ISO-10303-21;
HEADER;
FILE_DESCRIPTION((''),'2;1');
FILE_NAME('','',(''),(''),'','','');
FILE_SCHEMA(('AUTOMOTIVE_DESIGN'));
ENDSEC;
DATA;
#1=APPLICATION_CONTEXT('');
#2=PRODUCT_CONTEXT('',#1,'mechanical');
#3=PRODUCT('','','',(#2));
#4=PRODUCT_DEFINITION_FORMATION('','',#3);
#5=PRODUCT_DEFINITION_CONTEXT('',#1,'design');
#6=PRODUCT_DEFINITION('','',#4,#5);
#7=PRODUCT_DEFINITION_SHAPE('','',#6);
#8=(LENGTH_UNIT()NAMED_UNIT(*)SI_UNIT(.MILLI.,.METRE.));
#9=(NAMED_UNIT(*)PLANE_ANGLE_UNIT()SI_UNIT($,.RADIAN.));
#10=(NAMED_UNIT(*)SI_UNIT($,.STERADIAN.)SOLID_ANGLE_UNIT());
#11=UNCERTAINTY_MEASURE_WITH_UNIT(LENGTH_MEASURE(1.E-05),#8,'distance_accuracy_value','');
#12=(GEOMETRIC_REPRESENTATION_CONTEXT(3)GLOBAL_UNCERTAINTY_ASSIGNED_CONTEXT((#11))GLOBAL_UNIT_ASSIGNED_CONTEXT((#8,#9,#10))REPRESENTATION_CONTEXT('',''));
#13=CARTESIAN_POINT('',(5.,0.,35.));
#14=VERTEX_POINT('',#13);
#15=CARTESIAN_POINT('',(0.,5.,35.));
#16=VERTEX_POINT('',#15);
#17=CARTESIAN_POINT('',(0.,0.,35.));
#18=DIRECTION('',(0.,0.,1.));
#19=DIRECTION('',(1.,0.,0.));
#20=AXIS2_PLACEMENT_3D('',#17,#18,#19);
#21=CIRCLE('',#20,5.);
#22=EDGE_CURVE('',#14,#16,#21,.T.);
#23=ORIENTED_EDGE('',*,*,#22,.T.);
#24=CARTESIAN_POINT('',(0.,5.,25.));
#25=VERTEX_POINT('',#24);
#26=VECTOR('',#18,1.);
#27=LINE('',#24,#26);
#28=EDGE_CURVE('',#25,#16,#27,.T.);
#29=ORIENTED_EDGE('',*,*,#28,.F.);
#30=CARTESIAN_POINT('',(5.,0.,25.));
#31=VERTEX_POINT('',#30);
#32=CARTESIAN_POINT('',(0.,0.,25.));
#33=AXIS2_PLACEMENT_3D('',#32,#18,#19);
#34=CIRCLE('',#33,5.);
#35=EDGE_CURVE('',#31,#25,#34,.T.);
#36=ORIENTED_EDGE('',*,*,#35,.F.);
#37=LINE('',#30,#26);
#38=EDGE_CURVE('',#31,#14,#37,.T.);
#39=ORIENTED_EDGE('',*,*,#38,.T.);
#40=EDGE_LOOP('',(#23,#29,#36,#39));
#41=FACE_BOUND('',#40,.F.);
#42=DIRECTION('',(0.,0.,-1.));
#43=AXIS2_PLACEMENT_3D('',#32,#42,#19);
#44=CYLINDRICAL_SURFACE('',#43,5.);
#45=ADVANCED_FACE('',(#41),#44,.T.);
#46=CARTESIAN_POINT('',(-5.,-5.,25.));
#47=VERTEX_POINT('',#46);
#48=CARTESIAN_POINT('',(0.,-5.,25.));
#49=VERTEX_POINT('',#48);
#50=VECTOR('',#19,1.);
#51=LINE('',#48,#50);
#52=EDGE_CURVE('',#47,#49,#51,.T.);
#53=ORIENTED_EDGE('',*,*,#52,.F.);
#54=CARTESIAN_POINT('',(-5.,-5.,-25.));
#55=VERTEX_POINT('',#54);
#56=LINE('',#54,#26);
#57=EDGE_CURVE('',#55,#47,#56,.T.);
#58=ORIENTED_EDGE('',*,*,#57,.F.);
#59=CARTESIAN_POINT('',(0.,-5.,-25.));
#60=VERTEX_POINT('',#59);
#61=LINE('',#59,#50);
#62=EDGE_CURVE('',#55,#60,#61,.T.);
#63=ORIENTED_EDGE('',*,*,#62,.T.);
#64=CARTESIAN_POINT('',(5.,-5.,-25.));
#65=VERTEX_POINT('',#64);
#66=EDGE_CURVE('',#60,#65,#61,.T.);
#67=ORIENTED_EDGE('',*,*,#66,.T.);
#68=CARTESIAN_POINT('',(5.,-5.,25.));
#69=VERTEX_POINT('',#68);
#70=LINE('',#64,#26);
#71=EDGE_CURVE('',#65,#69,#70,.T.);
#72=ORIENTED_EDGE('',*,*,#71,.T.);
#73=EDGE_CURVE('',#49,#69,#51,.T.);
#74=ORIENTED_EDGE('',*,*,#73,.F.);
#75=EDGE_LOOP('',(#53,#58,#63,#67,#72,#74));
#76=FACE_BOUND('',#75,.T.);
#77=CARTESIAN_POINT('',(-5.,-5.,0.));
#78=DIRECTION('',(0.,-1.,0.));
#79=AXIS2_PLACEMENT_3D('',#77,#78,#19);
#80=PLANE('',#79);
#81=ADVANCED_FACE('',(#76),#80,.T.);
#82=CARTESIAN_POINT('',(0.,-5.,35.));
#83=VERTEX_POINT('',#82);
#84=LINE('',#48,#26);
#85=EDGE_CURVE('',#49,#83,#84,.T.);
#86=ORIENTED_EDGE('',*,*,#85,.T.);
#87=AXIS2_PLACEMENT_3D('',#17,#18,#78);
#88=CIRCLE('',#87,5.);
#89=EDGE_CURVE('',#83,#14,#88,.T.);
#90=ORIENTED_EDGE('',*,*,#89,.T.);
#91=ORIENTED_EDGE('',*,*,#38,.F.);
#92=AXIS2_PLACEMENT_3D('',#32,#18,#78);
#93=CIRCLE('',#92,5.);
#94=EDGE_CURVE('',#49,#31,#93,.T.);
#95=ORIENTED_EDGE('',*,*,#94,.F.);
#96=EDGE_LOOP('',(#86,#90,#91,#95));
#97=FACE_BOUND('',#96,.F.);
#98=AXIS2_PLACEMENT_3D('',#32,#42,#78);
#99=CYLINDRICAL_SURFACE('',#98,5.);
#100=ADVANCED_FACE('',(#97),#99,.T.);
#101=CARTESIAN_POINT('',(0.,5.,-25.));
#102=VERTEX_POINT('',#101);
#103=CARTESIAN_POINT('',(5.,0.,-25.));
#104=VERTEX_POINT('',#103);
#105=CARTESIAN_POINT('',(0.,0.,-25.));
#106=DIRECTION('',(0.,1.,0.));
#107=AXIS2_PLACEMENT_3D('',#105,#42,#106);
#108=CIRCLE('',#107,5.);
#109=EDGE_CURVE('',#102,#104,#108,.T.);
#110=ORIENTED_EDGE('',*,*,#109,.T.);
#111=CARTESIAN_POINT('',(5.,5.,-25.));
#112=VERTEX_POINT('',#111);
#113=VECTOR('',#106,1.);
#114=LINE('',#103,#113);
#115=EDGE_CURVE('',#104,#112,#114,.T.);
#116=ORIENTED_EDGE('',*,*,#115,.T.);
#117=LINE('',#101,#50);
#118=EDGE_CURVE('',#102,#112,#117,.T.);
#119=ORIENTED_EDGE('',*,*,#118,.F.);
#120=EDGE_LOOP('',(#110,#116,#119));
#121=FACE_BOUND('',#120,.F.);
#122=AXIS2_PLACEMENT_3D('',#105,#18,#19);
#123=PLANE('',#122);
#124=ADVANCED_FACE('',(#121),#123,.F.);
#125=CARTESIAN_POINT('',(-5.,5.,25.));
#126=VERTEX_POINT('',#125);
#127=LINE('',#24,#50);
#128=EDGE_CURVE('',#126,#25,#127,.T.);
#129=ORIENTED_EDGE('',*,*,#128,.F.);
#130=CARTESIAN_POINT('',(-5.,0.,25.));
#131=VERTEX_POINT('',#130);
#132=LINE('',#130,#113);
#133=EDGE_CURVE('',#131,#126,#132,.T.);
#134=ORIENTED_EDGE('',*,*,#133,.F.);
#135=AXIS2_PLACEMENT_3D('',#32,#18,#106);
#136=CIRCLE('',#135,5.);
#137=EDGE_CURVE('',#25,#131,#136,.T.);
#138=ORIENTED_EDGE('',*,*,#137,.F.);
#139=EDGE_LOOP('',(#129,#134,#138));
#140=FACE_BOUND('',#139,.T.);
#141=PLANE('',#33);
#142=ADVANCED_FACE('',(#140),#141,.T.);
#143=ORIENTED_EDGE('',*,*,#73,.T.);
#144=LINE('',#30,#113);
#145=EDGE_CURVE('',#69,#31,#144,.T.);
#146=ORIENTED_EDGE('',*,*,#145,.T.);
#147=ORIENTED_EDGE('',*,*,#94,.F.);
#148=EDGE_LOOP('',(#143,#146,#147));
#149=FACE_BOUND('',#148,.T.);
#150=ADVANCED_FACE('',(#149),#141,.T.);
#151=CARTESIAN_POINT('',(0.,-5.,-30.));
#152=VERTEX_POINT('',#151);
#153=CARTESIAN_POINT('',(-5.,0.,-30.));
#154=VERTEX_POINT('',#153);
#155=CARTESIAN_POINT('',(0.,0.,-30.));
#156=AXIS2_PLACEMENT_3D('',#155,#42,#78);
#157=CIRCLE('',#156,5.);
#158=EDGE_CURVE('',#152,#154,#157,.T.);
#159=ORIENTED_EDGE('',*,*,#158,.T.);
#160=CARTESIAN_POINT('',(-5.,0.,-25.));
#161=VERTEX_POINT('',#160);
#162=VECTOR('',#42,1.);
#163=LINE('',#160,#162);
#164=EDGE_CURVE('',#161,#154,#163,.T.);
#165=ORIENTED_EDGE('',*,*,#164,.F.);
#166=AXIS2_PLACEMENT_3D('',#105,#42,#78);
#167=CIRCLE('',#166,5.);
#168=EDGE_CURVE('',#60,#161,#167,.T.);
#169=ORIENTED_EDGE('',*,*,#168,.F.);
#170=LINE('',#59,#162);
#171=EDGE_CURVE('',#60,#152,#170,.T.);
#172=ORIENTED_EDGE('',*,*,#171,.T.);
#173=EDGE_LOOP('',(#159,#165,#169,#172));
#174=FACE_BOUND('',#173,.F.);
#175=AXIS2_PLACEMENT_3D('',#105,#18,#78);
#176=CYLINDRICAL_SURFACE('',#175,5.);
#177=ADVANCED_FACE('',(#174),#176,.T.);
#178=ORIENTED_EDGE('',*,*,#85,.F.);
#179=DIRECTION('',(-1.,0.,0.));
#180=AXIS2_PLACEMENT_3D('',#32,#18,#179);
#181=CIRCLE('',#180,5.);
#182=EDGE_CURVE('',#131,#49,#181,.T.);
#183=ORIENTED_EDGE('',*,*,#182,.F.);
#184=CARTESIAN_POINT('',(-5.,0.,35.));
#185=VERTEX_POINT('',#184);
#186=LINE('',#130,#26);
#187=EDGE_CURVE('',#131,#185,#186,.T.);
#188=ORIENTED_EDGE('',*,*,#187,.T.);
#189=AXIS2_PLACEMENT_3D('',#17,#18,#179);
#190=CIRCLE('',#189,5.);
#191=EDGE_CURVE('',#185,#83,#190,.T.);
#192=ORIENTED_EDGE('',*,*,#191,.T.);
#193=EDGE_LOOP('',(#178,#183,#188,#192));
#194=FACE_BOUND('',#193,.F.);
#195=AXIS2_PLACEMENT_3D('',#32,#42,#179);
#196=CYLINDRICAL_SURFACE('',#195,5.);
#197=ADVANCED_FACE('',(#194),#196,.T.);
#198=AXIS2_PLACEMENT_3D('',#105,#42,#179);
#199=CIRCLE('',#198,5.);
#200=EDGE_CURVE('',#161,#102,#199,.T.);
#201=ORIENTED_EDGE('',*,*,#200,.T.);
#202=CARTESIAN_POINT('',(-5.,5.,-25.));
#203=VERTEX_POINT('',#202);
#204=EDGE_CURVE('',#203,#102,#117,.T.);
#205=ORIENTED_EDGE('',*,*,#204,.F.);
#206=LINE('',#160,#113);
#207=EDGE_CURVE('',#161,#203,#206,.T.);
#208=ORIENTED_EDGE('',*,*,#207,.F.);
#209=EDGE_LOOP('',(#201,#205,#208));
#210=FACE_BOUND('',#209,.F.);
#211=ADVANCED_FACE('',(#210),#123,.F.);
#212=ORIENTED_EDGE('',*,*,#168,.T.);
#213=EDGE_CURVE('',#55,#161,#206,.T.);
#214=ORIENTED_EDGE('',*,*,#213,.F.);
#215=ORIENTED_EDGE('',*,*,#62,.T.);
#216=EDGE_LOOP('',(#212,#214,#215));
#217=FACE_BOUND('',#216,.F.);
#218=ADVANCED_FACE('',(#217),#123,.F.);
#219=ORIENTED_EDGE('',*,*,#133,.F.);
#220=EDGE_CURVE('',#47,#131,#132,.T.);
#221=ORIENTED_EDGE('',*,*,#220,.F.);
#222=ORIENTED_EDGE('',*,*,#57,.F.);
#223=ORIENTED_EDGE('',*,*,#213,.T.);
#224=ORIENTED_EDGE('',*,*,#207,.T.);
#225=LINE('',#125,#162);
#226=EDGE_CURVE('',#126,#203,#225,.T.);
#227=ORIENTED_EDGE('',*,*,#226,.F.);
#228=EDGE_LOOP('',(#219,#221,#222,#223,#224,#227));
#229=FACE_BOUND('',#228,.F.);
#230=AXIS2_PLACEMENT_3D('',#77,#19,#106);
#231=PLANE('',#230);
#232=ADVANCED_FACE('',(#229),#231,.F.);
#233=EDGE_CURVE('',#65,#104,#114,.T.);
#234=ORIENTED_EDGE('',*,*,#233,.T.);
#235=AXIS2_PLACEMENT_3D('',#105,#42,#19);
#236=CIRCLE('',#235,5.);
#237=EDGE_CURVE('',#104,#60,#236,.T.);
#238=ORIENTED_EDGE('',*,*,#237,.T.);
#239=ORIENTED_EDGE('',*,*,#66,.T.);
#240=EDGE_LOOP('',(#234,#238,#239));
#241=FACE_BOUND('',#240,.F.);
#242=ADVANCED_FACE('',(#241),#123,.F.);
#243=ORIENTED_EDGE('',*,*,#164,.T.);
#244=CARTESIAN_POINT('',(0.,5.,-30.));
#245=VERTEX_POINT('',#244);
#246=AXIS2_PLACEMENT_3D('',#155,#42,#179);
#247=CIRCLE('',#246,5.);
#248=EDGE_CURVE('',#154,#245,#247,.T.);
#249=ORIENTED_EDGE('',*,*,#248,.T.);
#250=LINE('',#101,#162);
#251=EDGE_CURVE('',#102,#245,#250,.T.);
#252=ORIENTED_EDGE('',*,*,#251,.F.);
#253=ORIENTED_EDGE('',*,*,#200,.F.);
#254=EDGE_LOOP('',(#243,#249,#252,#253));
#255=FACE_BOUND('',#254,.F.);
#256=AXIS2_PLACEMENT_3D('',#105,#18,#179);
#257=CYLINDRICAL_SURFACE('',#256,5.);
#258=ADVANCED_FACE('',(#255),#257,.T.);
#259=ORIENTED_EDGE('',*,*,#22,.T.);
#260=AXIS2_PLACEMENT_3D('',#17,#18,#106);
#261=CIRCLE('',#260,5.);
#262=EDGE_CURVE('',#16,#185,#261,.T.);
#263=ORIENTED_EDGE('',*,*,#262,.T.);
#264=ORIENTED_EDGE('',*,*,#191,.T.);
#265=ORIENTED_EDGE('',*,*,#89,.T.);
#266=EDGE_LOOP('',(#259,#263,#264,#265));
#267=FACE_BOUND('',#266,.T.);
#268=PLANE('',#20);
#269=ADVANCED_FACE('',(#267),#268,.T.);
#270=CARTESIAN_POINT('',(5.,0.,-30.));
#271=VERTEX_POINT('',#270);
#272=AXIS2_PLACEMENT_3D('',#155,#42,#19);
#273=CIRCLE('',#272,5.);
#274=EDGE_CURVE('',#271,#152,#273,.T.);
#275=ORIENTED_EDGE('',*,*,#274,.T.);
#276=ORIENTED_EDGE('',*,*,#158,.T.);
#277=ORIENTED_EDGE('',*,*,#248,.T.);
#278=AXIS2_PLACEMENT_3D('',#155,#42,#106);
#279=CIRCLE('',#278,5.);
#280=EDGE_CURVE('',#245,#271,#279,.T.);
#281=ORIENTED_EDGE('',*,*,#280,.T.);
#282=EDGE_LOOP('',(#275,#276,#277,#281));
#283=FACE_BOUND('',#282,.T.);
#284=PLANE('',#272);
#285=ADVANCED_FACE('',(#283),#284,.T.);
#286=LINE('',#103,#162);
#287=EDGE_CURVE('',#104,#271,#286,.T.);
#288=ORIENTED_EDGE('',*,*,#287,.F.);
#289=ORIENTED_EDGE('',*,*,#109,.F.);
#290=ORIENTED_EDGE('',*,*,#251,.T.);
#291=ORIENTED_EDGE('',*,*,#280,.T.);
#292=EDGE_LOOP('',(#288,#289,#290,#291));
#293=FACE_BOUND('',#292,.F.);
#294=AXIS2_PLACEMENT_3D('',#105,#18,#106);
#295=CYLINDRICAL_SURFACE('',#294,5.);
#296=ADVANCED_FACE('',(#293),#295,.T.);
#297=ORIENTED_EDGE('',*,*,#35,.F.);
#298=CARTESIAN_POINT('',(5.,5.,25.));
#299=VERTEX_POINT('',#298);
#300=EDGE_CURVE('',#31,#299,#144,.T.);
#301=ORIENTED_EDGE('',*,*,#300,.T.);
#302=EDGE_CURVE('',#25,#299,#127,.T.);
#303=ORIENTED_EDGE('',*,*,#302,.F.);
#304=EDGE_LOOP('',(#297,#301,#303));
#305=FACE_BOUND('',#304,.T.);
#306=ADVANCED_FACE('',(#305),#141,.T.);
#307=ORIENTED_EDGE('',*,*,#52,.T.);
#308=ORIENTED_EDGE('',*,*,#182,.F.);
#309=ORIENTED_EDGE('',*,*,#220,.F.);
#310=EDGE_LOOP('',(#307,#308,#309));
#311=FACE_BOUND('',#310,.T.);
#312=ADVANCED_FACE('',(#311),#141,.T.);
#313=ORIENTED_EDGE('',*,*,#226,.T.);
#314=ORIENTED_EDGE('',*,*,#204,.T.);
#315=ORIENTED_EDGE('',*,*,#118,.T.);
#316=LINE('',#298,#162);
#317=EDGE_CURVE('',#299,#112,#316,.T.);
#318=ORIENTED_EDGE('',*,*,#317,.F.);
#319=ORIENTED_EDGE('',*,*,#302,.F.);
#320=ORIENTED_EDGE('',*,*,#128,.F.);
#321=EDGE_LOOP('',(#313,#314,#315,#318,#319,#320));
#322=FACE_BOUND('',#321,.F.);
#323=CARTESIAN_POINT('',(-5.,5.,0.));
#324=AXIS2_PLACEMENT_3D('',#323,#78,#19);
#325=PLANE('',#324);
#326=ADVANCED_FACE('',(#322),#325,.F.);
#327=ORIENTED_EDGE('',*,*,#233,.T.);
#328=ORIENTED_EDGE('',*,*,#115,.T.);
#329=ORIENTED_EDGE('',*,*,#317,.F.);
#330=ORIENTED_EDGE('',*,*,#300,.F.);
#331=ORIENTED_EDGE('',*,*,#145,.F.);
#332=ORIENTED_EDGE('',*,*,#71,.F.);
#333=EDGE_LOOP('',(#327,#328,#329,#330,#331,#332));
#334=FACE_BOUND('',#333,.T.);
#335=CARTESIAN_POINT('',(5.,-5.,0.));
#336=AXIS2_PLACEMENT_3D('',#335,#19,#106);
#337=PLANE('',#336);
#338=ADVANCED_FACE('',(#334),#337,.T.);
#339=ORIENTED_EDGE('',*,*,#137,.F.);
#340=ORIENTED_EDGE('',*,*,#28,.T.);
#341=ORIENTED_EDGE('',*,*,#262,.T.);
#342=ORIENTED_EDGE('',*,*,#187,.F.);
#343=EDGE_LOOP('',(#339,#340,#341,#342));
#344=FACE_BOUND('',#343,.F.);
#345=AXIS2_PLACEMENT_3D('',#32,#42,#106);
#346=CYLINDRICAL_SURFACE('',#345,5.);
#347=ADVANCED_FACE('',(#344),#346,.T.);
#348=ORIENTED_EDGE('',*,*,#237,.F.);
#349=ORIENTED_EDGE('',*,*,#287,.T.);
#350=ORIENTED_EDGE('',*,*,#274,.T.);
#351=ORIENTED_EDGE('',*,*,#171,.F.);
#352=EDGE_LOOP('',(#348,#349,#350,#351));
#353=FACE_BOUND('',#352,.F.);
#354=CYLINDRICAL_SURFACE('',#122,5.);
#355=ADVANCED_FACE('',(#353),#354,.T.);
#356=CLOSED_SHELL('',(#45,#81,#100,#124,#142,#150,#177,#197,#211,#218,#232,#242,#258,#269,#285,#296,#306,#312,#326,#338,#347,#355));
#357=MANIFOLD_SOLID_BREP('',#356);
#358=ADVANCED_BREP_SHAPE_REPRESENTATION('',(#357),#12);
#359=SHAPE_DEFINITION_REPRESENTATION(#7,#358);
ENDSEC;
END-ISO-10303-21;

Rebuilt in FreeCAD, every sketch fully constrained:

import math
import FreeCAD as App
import Part
import Sketcher

V = App.Vector
Q = App.Units.Quantity


def add_polygon(sketch, points):
    """Adds a closed chain of lines whose ends are joined by coincident constraints."""
    first, n = sketch.GeometryCount, len(points)
    for a, b in zip(points, points[1:] + points[:1]):
        sketch.addGeometry(Part.LineSegment(App.Vector(*a, 0), App.Vector(*b, 0)), False)
    for i in range(n):
        sketch.addConstraint(Sketcher.Constraint("Coincident", first + i, 2, first + (i + 1) % n, 1))

doc = App.newDocument("Part")
params = doc.addObject("Spreadsheet::Sheet", "Params")
for row, (alias, value) in enumerate([
    ("sketch1_width", "10 mm"),
    ("pad1_length", "50 mm"),
    ("sketch2_radius", "5 mm"),
    ("pad2_length", "5 mm"),
    ("sketch3_radius", "5 mm"),
    ("pad3_length", "10 mm"),
], start=1):
    params.set(f"A{row}", alias)
    params.set(f"B{row}", "=" + value)
    params.setAlias(f"B{row}", alias)

body = doc.addObject("PartDesign::Body", "Body")

# Sketch on XY plane
sketch1 = body.newObject("Sketcher::SketchObject", "Sketch")
sketch1.AttachmentSupport = (doc.getObject("XY_Plane"), [""])
sketch1.MapMode = "FlatFace"
add_polygon(sketch1, [(-5, 5), (-5, -5), (5, -5), (5, 5)])  # lines 0-3
sketch1.addConstraint([
    Sketcher.Constraint("Vertical", 0),
    Sketcher.Constraint("Horizontal", 1),
    Sketcher.Constraint("Vertical", 2),
    Sketcher.Constraint("Horizontal", 3),
    Sketcher.Constraint("Symmetric", 0, 2, 2, 2, -1, 1),
    Sketcher.Constraint("Equal", 3, 0),
    Sketcher.Constraint("DistanceX", 1, 1, 1, 2, Q("10 mm")),
])
sketch1.setExpression("Constraints[10]", "Params.sketch1_width")
pad1 = body.newObject("PartDesign::Pad", "Pad")
pad1.Profile = sketch1
pad1.setExpression("Length", "Params.pad1_length")
pad1.Midplane = True

# Sketch on XY plane
sketch2 = body.newObject("Sketcher::SketchObject", "Sketch001")
sketch2.AttachmentSupport = (doc.getObject("XY_Plane"), [""])
sketch2.MapMode = "FlatFace"
sketch2.AttachmentOffset = App.Placement(V(0, 0, -25), App.Rotation())
sketch2.addGeometry([
    Part.ArcOfCircle(Part.Circle(V(0, 0, 0), V(0, 0, 1), 5), math.radians(0), math.radians(90)),
    Part.ArcOfCircle(Part.Circle(V(0, 0, 0), V(0, 0, 1), 5), math.radians(-90), math.radians(0)),
    Part.ArcOfCircle(Part.Circle(V(0, 0, 0), V(0, 0, 1), 5), math.radians(180), math.radians(270)),
    Part.ArcOfCircle(Part.Circle(V(0, 0, 0), V(0, 0, 1), 5), math.radians(90), math.radians(180)),
], False)
sketch2.addConstraint([
    Sketcher.Constraint("Tangent", 0, 1, 1, 2),
    Sketcher.Constraint("Tangent", 1, 1, 2, 2),
    Sketcher.Constraint("Tangent", 2, 1, 3, 2),
    Sketcher.Constraint("Tangent", 3, 1, 0, 2),
    Sketcher.Constraint("Coincident", 0, 3, -1, 1),
    Sketcher.Constraint("Equal", 0, 1),
    Sketcher.Constraint("PointOnObject", 0, 1, -1),
    Sketcher.Constraint("PointOnObject", 1, 1, -2),
    Sketcher.Constraint("PointOnObject", 2, 1, -1),
    Sketcher.Constraint("PointOnObject", 3, 1, -2),
    Sketcher.Constraint("Radius", 0, Q("5 mm")),
])
sketch2.setExpression("Constraints[10]", "Params.sketch2_radius")
pad2 = body.newObject("PartDesign::Pad", "Pad001")
pad2.Profile = sketch2
pad2.setExpression("Length", "Params.pad2_length")
pad2.Reversed = True

# Sketch on XY plane
sketch3 = body.newObject("Sketcher::SketchObject", "Sketch002")
sketch3.AttachmentSupport = (doc.getObject("XY_Plane"), [""])
sketch3.MapMode = "FlatFace"
sketch3.AttachmentOffset = App.Placement(V(0, 0, 25), App.Rotation())
sketch3.addGeometry([
    Part.ArcOfCircle(Part.Circle(V(0, 0, 0), V(0, 0, 1), 5), math.radians(-90), math.radians(0)),
    Part.ArcOfCircle(Part.Circle(V(0, 0, 0), V(0, 0, 1), 5), math.radians(0), math.radians(90)),
    Part.ArcOfCircle(Part.Circle(V(0, 0, 0), V(0, 0, 1), 5), math.radians(90), math.radians(180)),
    Part.ArcOfCircle(Part.Circle(V(0, 0, 0), V(0, 0, 1), 5), math.radians(180), math.radians(270)),
], False)
sketch3.addConstraint([
    Sketcher.Constraint("Tangent", 0, 2, 1, 1),
    Sketcher.Constraint("Tangent", 1, 2, 2, 1),
    Sketcher.Constraint("Tangent", 2, 2, 3, 1),
    Sketcher.Constraint("Tangent", 3, 2, 0, 1),
    Sketcher.Constraint("Coincident", 0, 3, -1, 1),
    Sketcher.Constraint("Equal", 0, 1),
    Sketcher.Constraint("PointOnObject", 0, 2, -1),
    Sketcher.Constraint("PointOnObject", 1, 2, -2),
    Sketcher.Constraint("PointOnObject", 2, 2, -1),
    Sketcher.Constraint("PointOnObject", 3, 2, -2),
    Sketcher.Constraint("Radius", 0, Q("5 mm")),
])
sketch3.setExpression("Constraints[10]", "Params.sketch3_radius")
pad3 = body.newObject("PartDesign::Pad", "Pad002")
pad3.Profile = sketch3
pad3.setExpression("Length", "Params.pad3_length")

doc.recompute()
